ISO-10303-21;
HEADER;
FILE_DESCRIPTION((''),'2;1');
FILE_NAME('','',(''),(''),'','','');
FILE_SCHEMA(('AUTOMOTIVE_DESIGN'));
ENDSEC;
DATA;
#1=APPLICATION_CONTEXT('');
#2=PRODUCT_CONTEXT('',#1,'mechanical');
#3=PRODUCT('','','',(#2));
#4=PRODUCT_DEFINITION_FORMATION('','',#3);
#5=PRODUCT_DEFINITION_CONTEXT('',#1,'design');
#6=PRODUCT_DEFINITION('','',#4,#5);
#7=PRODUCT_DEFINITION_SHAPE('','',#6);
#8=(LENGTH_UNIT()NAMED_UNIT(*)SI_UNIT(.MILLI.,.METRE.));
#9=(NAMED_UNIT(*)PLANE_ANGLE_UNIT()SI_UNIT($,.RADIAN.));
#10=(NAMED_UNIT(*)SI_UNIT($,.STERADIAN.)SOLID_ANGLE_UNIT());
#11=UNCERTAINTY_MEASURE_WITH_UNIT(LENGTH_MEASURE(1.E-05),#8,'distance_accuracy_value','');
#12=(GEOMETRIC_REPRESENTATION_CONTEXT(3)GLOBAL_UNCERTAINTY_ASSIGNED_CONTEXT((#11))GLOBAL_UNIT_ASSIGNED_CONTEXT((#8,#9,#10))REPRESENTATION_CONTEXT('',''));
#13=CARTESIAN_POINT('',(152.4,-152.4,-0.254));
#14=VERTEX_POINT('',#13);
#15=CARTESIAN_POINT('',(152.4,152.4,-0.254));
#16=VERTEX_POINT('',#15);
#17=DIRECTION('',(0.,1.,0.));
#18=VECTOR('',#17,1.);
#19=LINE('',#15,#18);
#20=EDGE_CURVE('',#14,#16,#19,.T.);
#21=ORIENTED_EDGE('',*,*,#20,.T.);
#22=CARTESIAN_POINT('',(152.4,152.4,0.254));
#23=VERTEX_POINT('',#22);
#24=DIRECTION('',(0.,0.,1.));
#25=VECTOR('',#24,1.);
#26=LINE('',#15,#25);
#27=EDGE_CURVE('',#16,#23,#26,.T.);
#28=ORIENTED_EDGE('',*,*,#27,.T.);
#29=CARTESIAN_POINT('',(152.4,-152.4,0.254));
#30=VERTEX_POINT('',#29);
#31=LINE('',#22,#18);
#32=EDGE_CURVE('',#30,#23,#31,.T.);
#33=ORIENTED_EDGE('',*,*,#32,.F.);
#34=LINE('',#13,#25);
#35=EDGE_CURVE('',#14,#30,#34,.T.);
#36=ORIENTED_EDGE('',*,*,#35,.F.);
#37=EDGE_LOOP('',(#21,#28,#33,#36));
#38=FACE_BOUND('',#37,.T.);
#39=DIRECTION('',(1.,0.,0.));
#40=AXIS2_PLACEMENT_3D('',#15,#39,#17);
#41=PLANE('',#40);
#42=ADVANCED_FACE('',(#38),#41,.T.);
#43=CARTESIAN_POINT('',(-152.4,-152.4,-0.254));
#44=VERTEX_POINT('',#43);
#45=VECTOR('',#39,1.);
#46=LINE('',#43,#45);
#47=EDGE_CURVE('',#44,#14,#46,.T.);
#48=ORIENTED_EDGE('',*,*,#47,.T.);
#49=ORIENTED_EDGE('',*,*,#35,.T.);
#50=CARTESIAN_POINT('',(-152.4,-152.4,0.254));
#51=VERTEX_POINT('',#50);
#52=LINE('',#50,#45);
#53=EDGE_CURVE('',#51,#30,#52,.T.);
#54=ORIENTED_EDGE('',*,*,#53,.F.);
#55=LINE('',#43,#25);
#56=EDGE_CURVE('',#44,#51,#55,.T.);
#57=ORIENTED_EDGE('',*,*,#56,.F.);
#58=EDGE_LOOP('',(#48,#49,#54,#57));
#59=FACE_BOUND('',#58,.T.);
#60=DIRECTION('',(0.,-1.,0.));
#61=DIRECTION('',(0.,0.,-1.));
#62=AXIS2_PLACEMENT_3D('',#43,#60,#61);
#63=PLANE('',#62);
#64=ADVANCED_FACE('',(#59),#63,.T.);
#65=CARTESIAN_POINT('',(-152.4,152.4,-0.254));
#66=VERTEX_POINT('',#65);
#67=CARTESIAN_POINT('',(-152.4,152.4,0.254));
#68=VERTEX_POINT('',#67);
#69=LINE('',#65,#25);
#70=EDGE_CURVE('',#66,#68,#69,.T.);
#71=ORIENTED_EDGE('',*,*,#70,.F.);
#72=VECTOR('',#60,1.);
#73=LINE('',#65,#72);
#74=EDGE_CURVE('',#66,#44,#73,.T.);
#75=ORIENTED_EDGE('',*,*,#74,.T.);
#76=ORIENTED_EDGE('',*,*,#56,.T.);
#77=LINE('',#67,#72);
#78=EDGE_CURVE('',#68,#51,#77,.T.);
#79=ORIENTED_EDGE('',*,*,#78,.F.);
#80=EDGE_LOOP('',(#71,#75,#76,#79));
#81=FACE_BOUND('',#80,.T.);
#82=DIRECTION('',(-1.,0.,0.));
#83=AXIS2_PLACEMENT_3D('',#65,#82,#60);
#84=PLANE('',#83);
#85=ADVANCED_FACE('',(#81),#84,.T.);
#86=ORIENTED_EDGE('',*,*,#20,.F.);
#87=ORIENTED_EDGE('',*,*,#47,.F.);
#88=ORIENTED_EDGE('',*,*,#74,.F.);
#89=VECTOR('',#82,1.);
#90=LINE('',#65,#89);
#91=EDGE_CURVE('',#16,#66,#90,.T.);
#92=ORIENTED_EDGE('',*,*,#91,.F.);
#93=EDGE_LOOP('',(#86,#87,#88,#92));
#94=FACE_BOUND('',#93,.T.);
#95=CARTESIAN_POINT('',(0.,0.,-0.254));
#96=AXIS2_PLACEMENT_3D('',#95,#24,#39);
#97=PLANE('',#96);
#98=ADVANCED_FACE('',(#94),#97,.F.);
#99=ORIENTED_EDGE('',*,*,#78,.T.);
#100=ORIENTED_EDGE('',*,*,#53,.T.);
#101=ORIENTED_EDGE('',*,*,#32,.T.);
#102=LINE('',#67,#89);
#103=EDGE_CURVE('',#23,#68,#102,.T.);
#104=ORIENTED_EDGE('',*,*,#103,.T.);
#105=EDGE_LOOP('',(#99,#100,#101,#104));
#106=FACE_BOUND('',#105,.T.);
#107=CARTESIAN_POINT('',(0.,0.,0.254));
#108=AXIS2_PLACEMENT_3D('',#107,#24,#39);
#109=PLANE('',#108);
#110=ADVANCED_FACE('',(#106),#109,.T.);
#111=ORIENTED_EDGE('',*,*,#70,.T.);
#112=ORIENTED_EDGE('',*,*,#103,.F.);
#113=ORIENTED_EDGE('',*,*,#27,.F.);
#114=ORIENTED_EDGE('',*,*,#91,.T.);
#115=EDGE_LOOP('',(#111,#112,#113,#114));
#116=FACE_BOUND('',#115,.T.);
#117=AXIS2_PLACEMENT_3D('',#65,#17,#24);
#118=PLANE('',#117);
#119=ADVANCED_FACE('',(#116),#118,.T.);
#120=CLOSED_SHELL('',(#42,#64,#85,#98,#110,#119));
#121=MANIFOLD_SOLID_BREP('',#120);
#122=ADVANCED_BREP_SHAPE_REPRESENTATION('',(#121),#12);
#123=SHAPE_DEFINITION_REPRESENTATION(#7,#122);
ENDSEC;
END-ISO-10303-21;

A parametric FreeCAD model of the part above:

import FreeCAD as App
import Part
import Sketcher

V = App.Vector
Q = App.Units.Quantity


def add_polygon(sketch, points):
    """Adds a closed chain of lines whose ends are joined by coincident constraints."""
    first, n = sketch.GeometryCount, len(points)
    for a, b in zip(points, points[1:] + points[:1]):
        sketch.addGeometry(Part.LineSegment(App.Vector(*a, 0), App.Vector(*b, 0)), False)
    for i in range(n):
        sketch.addConstraint(Sketcher.Constraint("Coincident", first + i, 2, first + (i + 1) % n, 1))

doc = App.newDocument("Part")
body = doc.addObject("PartDesign::Body", "Body")

# Sketch on XY plane
sketch1 = doc.addObject("Sketcher::SketchObject", "Sketch")
body.addObject(sketch1)
sketch1.AttachmentSupport = (doc.XY_Plane, [""])
sketch1.MapMode = "FlatFace"
add_polygon(sketch1, [(-152, 152), (-152, -152), (152, -152), (152, 152)])  # lines 0-3
sketch1.addConstraint([
    Sketcher.Constraint("Vertical", 0),
    Sketcher.Constraint("Horizontal", 1),
    Sketcher.Constraint("Vertical", 2),
    Sketcher.Constraint("Horizontal", 3),
    Sketcher.Constraint("Symmetric", 0, 2, 2, 2, -1, 1),
    Sketcher.Constraint("Equal", 3, 0),
    Sketcher.Constraint("DistanceX", 1, 1, 1, 2, Q("12 in")),
])
pad1 = doc.addObject("PartDesign::Pad", "Pad")
body.addObject(pad1)
pad1.Profile = sketch1
pad1.Type = "TwoLengths"
pad1.Length = Q("0.01 in")
pad1.Length2 = Q("0.01 in")

doc.recompute()
